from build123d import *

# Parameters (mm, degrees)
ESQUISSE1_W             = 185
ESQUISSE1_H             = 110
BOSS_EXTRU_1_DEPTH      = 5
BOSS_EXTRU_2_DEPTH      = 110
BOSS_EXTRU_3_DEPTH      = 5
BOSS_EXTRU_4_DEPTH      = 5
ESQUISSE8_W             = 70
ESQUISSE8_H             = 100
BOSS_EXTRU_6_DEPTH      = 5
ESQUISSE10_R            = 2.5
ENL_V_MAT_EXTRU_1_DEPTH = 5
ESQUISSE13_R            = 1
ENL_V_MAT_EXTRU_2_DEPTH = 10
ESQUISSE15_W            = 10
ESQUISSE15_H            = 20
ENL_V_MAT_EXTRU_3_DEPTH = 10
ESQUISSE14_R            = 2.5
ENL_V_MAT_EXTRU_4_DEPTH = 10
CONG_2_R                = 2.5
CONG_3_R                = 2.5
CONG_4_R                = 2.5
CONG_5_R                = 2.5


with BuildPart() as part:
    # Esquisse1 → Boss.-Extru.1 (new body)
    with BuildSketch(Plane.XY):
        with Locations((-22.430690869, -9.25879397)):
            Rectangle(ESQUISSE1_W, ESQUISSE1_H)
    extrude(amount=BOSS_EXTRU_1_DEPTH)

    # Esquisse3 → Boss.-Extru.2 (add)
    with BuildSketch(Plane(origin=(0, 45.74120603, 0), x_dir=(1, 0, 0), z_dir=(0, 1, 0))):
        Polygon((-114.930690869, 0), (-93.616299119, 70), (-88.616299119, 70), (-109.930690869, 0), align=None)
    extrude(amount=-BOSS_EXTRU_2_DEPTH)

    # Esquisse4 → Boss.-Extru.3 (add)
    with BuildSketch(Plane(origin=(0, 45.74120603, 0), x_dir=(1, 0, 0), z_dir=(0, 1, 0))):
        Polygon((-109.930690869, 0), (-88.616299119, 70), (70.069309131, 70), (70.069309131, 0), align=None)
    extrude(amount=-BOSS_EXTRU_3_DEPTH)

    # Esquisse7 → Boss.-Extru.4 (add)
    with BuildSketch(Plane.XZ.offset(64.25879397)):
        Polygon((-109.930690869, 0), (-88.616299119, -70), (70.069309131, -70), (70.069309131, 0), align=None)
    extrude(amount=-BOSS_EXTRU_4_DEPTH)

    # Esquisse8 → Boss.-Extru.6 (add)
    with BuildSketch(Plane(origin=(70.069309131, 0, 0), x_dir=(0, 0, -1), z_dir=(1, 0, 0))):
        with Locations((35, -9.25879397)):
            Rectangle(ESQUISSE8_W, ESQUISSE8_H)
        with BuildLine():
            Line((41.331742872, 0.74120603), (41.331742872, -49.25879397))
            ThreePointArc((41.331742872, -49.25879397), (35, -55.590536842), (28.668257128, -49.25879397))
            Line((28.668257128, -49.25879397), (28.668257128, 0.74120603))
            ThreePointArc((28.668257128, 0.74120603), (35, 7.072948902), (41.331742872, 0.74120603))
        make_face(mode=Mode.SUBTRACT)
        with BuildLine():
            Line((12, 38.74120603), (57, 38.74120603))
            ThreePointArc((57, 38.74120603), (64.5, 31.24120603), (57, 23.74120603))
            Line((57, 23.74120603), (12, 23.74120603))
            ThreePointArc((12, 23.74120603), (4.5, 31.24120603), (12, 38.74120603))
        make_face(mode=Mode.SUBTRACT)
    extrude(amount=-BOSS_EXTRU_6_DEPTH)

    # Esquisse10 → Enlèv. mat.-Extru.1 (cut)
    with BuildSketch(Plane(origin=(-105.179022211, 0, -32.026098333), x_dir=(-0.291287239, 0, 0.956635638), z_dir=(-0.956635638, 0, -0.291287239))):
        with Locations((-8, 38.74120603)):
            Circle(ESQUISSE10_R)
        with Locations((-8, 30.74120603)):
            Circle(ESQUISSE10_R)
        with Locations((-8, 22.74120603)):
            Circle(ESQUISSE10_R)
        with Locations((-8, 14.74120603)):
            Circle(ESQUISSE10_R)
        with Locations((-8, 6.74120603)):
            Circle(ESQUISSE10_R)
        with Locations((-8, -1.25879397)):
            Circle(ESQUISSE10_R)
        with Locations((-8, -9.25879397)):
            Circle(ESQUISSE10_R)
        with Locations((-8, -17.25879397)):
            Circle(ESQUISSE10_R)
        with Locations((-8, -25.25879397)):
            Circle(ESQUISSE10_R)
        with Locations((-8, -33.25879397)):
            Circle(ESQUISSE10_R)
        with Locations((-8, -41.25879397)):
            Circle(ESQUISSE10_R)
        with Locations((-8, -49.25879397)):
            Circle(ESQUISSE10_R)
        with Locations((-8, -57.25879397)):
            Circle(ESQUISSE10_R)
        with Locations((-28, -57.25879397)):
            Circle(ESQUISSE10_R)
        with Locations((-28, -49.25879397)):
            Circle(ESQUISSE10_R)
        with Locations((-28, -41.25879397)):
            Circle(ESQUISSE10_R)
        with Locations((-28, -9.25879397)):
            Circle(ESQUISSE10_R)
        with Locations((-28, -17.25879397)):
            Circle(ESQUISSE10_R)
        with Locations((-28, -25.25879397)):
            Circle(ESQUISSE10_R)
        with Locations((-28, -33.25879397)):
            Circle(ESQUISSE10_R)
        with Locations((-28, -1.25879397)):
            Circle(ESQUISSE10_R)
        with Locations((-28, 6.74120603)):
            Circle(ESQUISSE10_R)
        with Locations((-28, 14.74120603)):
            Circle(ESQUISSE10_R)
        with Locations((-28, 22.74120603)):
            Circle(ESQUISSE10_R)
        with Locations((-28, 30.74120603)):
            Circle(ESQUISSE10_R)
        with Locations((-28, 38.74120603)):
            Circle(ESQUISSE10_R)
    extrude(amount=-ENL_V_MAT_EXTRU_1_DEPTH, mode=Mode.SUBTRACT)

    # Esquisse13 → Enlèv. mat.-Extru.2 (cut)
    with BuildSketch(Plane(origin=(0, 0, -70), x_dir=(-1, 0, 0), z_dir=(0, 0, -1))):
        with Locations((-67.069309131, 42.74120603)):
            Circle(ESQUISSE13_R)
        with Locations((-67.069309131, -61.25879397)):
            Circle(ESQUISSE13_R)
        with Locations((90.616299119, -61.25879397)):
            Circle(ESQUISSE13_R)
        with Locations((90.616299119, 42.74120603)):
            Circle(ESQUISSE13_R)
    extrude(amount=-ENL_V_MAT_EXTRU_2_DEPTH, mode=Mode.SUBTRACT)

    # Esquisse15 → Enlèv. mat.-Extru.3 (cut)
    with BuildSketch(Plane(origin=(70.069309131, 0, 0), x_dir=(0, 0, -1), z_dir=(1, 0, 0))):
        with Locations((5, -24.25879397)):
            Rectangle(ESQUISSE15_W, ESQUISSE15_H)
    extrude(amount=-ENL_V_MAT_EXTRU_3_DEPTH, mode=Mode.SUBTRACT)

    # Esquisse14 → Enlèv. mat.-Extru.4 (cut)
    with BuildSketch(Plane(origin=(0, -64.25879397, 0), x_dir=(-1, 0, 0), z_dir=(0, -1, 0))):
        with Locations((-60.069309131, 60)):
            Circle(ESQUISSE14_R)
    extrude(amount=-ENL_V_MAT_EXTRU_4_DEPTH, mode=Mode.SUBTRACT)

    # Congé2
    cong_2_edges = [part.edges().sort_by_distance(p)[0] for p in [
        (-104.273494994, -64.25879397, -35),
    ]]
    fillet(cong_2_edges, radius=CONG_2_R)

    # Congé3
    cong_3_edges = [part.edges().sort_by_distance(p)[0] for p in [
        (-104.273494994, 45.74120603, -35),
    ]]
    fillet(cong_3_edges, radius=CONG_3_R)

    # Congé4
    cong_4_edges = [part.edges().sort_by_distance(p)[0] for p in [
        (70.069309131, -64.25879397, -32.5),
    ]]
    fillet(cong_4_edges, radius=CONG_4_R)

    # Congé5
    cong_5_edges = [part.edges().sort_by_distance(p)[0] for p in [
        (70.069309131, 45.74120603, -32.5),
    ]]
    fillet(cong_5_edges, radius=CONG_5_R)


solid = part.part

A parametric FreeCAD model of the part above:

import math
import FreeCAD as App
import Part
import Sketcher

V = App.Vector


def edges_at(feature, points):
    """Names of the edges that pass closest to the given points."""
    edges = feature.Shape.Edges
    near = lambda p: min(range(len(edges)), key=lambda i: edges[i].distToShape(Part.Vertex(*p))[0])
    return sorted({f"Edge{near(p) + 1}" for p in points})


def add_polygon(sketch, points):
    """Adds a closed chain of lines whose ends are joined by coincident constraints."""
    first, n = sketch.GeometryCount, len(points)
    for a, b in zip(points, points[1:] + points[:1]):
        sketch.addGeometry(Part.LineSegment(App.Vector(*a, 0), App.Vector(*b, 0)), False)
    for i in range(n):
        sketch.addConstraint(Sketcher.Constraint("Coincident", first + i, 2, first + (i + 1) % n, 1))

doc = App.newDocument("Part")
body = doc.addObject("PartDesign::Body", "Body")

# Sketch on XY plane
sketch1 = body.newObject("Sketcher::SketchObject", "Sketch")
sketch1.AttachmentSupport = (doc.getObject("XY_Plane"), [""])
sketch1.MapMode = "FlatFace"
add_polygon(sketch1, [(-115, 46), (-115, -64), (70, -64), (70, 46)])  # lines 0-3
sketch1.addConstraint([
    Sketcher.Constraint("Vertical", 0),
    Sketcher.Constraint("Horizontal", 1),
    Sketcher.Constraint("Vertical", 2),
    Sketcher.Constraint("Horizontal", 3),
    Sketcher.Constraint("DistanceX", 1, 1, 1, 2, 185.0),
    Sketcher.Constraint("DistanceY", 0, 2, 0, 1, 110.0),
    Sketcher.Constraint("DistanceX", 0, 2, -1, 1, 114.930691),
    Sketcher.Constraint("DistanceY", 0, 2, -1, 1, 64.258794),
])
pad1 = body.newObject("PartDesign::Pad", "Pad")
pad1.Profile = sketch1
pad1.Length = 5

# Sketch on XZ plane
sketch2 = body.newObject("Sketcher::SketchObject", "Sketch001")
sketch2.AttachmentSupport = (doc.getObject("XZ_Plane"), [""])
sketch2.MapMode = "FlatFace"
sketch2.AttachmentOffset = App.Placement(V(0, 0, -45.741206), App.Rotation())
add_polygon(sketch2, [(-94, -70), (-115, 0), (-110, 0), (-89, -70)])  # lines 0-3
sketch2.addConstraint([
    Sketcher.Constraint("Horizontal", 1),
    Sketcher.Constraint("Horizontal", 3),
    Sketcher.Constraint("PointOnObject", 0, 2, -1),
    Sketcher.Constraint("Parallel", 0, 2),
    Sketcher.Constraint("DistanceX", 1, 1, 1, 2, 5.0),
    Sketcher.Constraint("DistanceY", 2, 2, -1, 1, 70.0),
    Sketcher.Constraint("DistanceX", 2, 2, -1, 1, 88.616299),
    Sketcher.Constraint("DistanceX", 0, 2, -1, 1, 114.930691),
])
pad2 = body.newObject("PartDesign::Pad", "Pad001")
pad2.Profile = sketch2
pad2.Length = 110

# Sketch on XZ plane
sketch3 = body.newObject("Sketcher::SketchObject", "Sketch002")
sketch3.AttachmentSupport = (doc.getObject("XZ_Plane"), [""])
sketch3.MapMode = "FlatFace"
sketch3.AttachmentOffset = App.Placement(V(0, 0, -45.741206), App.Rotation())
add_polygon(sketch3, [(-89, -70), (-110, 0), (70, 0), (70, -70)])  # lines 0-3
sketch3.addConstraint([
    Sketcher.Constraint("Horizontal", 1),
    Sketcher.Constraint("Vertical", 2),
    Sketcher.Constraint("Horizontal", 3),
    Sketcher.Constraint("PointOnObject", 0, 2, -1),
    Sketcher.Constraint("DistanceX", 1, 1, 1, 2, 180.0),
    Sketcher.Constraint("DistanceY", 2, 2, 2, 1, 70.0),
    Sketcher.Constraint("DistanceX", 3, 2, 3, 1, 158.685608),
    Sketcher.Constraint("DistanceX", 3, 2, -1, 1, 88.616299),
])
pad3 = body.newObject("PartDesign::Pad", "Pad002")
pad3.Profile = sketch3
pad3.Length = 5

# Sketch on XZ plane
sketch4 = body.newObject("Sketcher::SketchObject", "Sketch003")
sketch4.AttachmentSupport = (doc.getObject("XZ_Plane"), [""])
sketch4.MapMode = "FlatFace"
sketch4.AttachmentOffset = App.Placement(V(0, 0, 64.258794), App.Rotation())
add_polygon(sketch4, [(-110, 0), (-89, -70), (70, -70), (70, 0)])  # lines 0-3
sketch4.addConstraint([
    Sketcher.Constraint("Horizontal", 1),
    Sketcher.Constraint("Vertical", 2),
    Sketcher.Constraint("Horizontal", 3),
    Sketcher.Constraint("PointOnObject", 2, 2, -1),
    Sketcher.Constraint("DistanceX", 3, 2, 3, 1, 180.0),
    Sketcher.Constraint("DistanceY", 2, 1, 2, 2, 70.0),
    Sketcher.Constraint("DistanceX", 1, 1, 1, 2, 158.685608),
    Sketcher.Constraint("DistanceX", 0, 2, -1, 1, 88.616299),
])
pad4 = body.newObject("PartDesign::Pad", "Pad003")
pad4.Profile = sketch4
pad4.Length = 5
pad4.Reversed = True

# Sketch on YZ plane
sketch5 = body.newObject("Sketcher::SketchObject", "Sketch004")
sketch5.AttachmentSupport = (doc.getObject("YZ_Plane"), [""])
sketch5.MapMode = "FlatFace"
sketch5.AttachmentOffset = App.Placement(V(0, 0, 70.069309), App.Rotation())
add_polygon(sketch5, [(41, 0), (-59, 0), (-59, -70), (41, -70)])  # lines 0-3
sketch5.addGeometry(Part.ArcOfCircle(Part.Circle(V(1, -35, 0), V(0, 0, 1), 6), math.radians(-90), math.radians(90)), False)  # 4
sketch5.addGeometry(Part.LineSegment(V(1, -41, 0), V(-49, -41, 0)), False)  # 5
sketch5.addGeometry(Part.ArcOfCircle(Part.Circle(V(-49, -35, 0), V(0, 0, 1), 6), math.radians(90), math.radians(270)), False)  # 6
sketch5.addGeometry(Part.LineSegment(V(-49, -29, 0), V(1, -29, 0)), False)  # 7
sketch5.addGeometry(Part.ArcOfCircle(Part.Circle(V(31, -12, 0), V(0, 0, 1), 8), math.radians(0), math.radians(180)), False)  # 8
sketch5.addGeometry(Part.LineSegment(V(39, -12, 0), V(39, -57, 0)), False)  # 9
sketch5.addGeometry(Part.ArcOfCircle(Part.Circle(V(31, -57, 0), V(0, 0, 1), 8), math.radians(180), math.radians(360)), False)  # 10
sketch5.addGeometry(Part.LineSegment(V(24, -57, 0), V(24, -12, 0)), False)  # 11
sketch5.addConstraint([
    Sketcher.Constraint("Tangent", 4, 1, 5, 1),
    Sketcher.Constraint("Tangent", 5, 2, 6, 2),
    Sketcher.Constraint("Tangent", 6, 1, 7, 1),
    Sketcher.Constraint("Tangent", 7, 2, 4, 2),
    Sketcher.Constraint("Tangent", 8, 1, 9, 1),
    Sketcher.Constraint("Tangent", 9, 2, 10, 2),
    Sketcher.Constraint("Tangent", 10, 1, 11, 1),
    Sketcher.Constraint("Tangent", 11, 2, 8, 2),
    Sketcher.Constraint("Horizontal", 0),
    Sketcher.Constraint("Vertical", 1),
    Sketcher.Constraint("Horizontal", 2),
    Sketcher.Constraint("Vertical", 3),
    Sketcher.Constraint("Horizontal", 5),
    Sketcher.Constraint("Horizontal", 7),
    Sketcher.Constraint("Vertical", 9),
    Sketcher.Constraint("Vertical", 11),
    Sketcher.Constraint("PointOnObject", 0, 2, -1),
    Sketcher.Constraint("Radius", 8, 7.5),
    Sketcher.Constraint("DistanceX", 0, 2, 0, 1, 100.0),
    Sketcher.Constraint("DistanceX", 5, 2, 5, 1, 50.0),
    Sketcher.Constraint("DistanceY", 1, 2, 1, 1, 70.0),
    Sketcher.Constraint("DistanceY", 9, 2, 9, 1, 45.0),
    Sketcher.Constraint("DistanceY", 4, 3, -1, 1, 35.0),
    Sketcher.Constraint("DistanceY", 8, 3, -1, 1, 12.0),
    Sketcher.Constraint("DistanceX", 0, 2, 6, 3, 10.0),
    Sketcher.Constraint("DistanceX", 8, 1, 3, 2, 2.0),
    Sketcher.Constraint("Radius", 4, 6.331743),
    Sketcher.Constraint("DistanceX", -1, 1, 4, 3, 0.741206),
])
pad5 = body.newObject("PartDesign::Pad", "Pad004")
pad5.Profile = sketch5
pad5.Length = 5
pad5.Reversed = True

# Sketch on an angled plane
sketch6 = body.newObject("Sketcher::SketchObject", "Sketch005")
sketch6.Placement = App.Placement(V(-105.179022, 0, -32.026098), App.Rotation(V(-0.291287239, 0, 0.956635638), V(0, 0.999999999, 0), V(-0.956635638, 0, -0.291287239), "ZXY"))
sketch6.addGeometry([
    Part.Circle(V(-8, 38.7, 0), V(0, 0, 1), 2.5),  # 0
    Part.Circle(V(-8, 30.7, 0), V(0, 0, 1), 2.5),  # 1
    Part.Circle(V(-8, 22.7, 0), V(0, 0, 1), 2.5),  # 2
    Part.Circle(V(-8, 14.7, 0), V(0, 0, 1), 2.5),  # 3
    Part.Circle(V(-8, 6.7, 0), V(0, 0, 1), 2.5),  # 4
    Part.Circle(V(-8, -1.3, 0), V(0, 0, 1), 2.5),  # 5
    Part.Circle(V(-8, -9.3, 0), V(0, 0, 1), 2.5),  # 6
    Part.Circle(V(-8, -17.3, 0), V(0, 0, 1), 2.5),  # 7
    Part.Circle(V(-8, -25.3, 0), V(0, 0, 1), 2.5),  # 8
    Part.Circle(V(-8, -33.3, 0), V(0, 0, 1), 2.5),  # 9
    Part.Circle(V(-8, -41.3, 0), V(0, 0, 1), 2.5),  # 10
    Part.Circle(V(-8, -49.3, 0), V(0, 0, 1), 2.5),  # 11
    Part.Circle(V(-8, -57.3, 0), V(0, 0, 1), 2.5),  # 12
    Part.Circle(V(-28, -57.3, 0), V(0, 0, 1), 2.5),  # 13
    Part.Circle(V(-28, -49.3, 0), V(0, 0, 1), 2.5),  # 14
    Part.Circle(V(-28, -41.3, 0), V(0, 0, 1), 2.5),  # 15
    Part.Circle(V(-28, -9.3, 0), V(0, 0, 1), 2.5),  # 16
    Part.Circle(V(-28, -17.3, 0), V(0, 0, 1), 2.5),  # 17
    Part.Circle(V(-28, -25.3, 0), V(0, 0, 1), 2.5),  # 18
    Part.Circle(V(-28, -33.3, 0), V(0, 0, 1), 2.5),  # 19
    Part.Circle(V(-28, -1.3, 0), V(0, 0, 1), 2.5),  # 20
    Part.Circle(V(-28, 6.7, 0), V(0, 0, 1), 2.5),  # 21
    Part.Circle(V(-28, 14.7, 0), V(0, 0, 1), 2.5),  # 22
    Part.Circle(V(-28, 22.7, 0), V(0, 0, 1), 2.5),  # 23
    Part.Circle(V(-28, 30.7, 0), V(0, 0, 1), 2.5),  # 24
    Part.Circle(V(-28, 38.7, 0), V(0, 0, 1), 2.5),  # 25
], False)
sketch6.addConstraint([
    Sketcher.Constraint("Equal", 0, 1),
    Sketcher.Constraint("Equal", 1, 2),
    Sketcher.Constraint("Equal", 2, 3),
    Sketcher.Constraint("Equal", 3, 4),
    Sketcher.Constraint("Equal", 4, 5),
    Sketcher.Constraint("Equal", 5, 6),
    Sketcher.Constraint("Equal", 6, 7),
    Sketcher.Constraint("Equal", 7, 8),
    Sketcher.Constraint("Equal", 8, 9),
    Sketcher.Constraint("Equal", 9, 10),
    Sketcher.Constraint("Equal", 10, 11),
    Sketcher.Constraint("Equal", 11, 12),
    Sketcher.Constraint("Equal", 12, 13),
    Sketcher.Constraint("Equal", 13, 14),
    Sketcher.Constraint("Equal", 14, 15),
    Sketcher.Constraint("Equal", 15, 16),
    Sketcher.Constraint("Equal", 16, 17),
    Sketcher.Constraint("Equal", 17, 18),
    Sketcher.Constraint("Equal", 18, 19),
    Sketcher.Constraint("Equal", 19, 20),
    Sketcher.Constraint("Equal", 20, 21),
    Sketcher.Constraint("Equal", 21, 22),
    Sketcher.Constraint("Equal", 22, 23),
    Sketcher.Constraint("Equal", 23, 24),
    Sketcher.Constraint("Equal", 24, 25),
    Sketcher.Constraint("Horizontal", 12, 3, 13, 3),
    Sketcher.Constraint("Horizontal", 11, 3, 14, 3),
    Sketcher.Constraint("Horizontal", 10, 3, 15, 3),
    Sketcher.Constraint("Horizontal", 6, 3, 16, 3),
    Sketcher.Constraint("Horizontal", 7, 3, 17, 3),
    Sketcher.Constraint("Horizontal", 8, 3, 18, 3),
    Sketcher.Constraint("Horizontal", 9, 3, 19, 3),
    Sketcher.Constraint("Horizontal", 5, 3, 20, 3),
    Sketcher.Constraint("Horizontal", 4, 3, 21, 3),
    Sketcher.Constraint("Horizontal", 3, 3, 22, 3),
    Sketcher.Constraint("Horizontal", 2, 3, 23, 3),
    Sketcher.Constraint("Horizontal", 1, 3, 24, 3),
    Sketcher.Constraint("Horizontal", 0, 3, 25, 3),
    Sketcher.Constraint("Vertical", 0, 3, 1, 3),
    Sketcher.Constraint("Vertical", 1, 3, 2, 3),
    Sketcher.Constraint("Vertical", 2, 3, 3, 3),
    Sketcher.Constraint("Vertical", 3, 3, 4, 3),
    Sketcher.Constraint("Vertical", 4, 3, 5, 3),
    Sketcher.Constraint("Vertical", 5, 3, 6, 3),
    Sketcher.Constraint("Vertical", 6, 3, 7, 3),
    Sketcher.Constraint("Vertical", 7, 3, 8, 3),
    Sketcher.Constraint("Vertical", 8, 3, 9, 3),
    Sketcher.Constraint("Vertical", 9, 3, 10, 3),
    Sketcher.Constraint("Vertical", 10, 3, 11, 3),
    Sketcher.Constraint("Vertical", 11, 3, 12, 3),
    Sketcher.Constraint("Vertical", 13, 3, 14, 3),
    Sketcher.Constraint("Vertical", 14, 3, 15, 3),
    Sketcher.Constraint("Vertical", 15, 3, 16, 3),
    Sketcher.Constraint("Vertical", 16, 3, 17, 3),
    Sketcher.Constraint("Vertical", 17, 3, 18, 3),
    Sketcher.Constraint("Vertical", 18, 3, 19, 3),
    Sketcher.Constraint("Vertical", 19, 3, 20, 3),
    Sketcher.Constraint("Vertical", 20, 3, 21, 3),
    Sketcher.Constraint("Vertical", 21, 3, 22, 3),
    Sketcher.Constraint("Vertical", 22, 3, 23, 3),
    Sketcher.Constraint("Vertical", 23, 3, 24, 3),
    Sketcher.Constraint("Vertical", 24, 3, 25, 3),
    Sketcher.Constraint("Diameter", 0, 5.0),
    Sketcher.Constraint("DistanceX", 0, 3, -1, 1, 8.0),
    Sketcher.Constraint("DistanceX", 13, 3, -1, 1, 28.0),
    Sketcher.Constraint("DistanceY", 1, 3, 0, 3, 8.0),
    Sketcher.Constraint("DistanceY", 2, 3, 1, 3, 8.0),
    Sketcher.Constraint("DistanceY", 3, 3, 2, 3, 8.0),
    Sketcher.Constraint("DistanceY", 4, 3, 3, 3, 8.0),
    Sketcher.Constraint("DistanceY", 5, 3, 4, 3, 8.0),
    Sketcher.Constraint("DistanceY", 6, 3, 5, 3, 8.0),
    Sketcher.Constraint("DistanceY", 7, 3, 6, 3, 8.0),
    Sketcher.Constraint("DistanceY", 8, 3, 7, 3, 8.0),
    Sketcher.Constraint("DistanceY", 9, 3, 8, 3, 8.0),
    Sketcher.Constraint("DistanceY", 10, 3, 9, 3, 8.0),
    Sketcher.Constraint("DistanceY", 11, 3, 10, 3, 8.0),
    Sketcher.Constraint("DistanceY", 12, 3, 11, 3, 8.0),
    Sketcher.Constraint("DistanceY", -1, 1, 0, 3, 38.741206),
])
pocket1 = body.newObject("PartDesign::Pocket", "Pocket")
pocket1.Profile = sketch6
pocket1.Length = 5

# Sketch on XY plane
sketch7 = body.newObject("Sketcher::SketchObject", "Sketch006")
sketch7.AttachmentSupport = (doc.getObject("XY_Plane"), [""])
sketch7.MapMode = "FlatFace"
sketch7.AttachmentOffset = App.Placement(V(0, 0, -70), App.Rotation())
sketch7.addGeometry([
    Part.Circle(V(67.1, 42.7, 0), V(0, 0, 1), 1),
    Part.Circle(V(67.1, -61.3, 0), V(0, 0, 1), 1),
    Part.Circle(V(-90.6, -61.3, 0), V(0, 0, 1), 1),
    Part.Circle(V(-90.6, 42.7, 0), V(0, 0, 1), 1),
], False)
sketch7.addConstraint([
    Sketcher.Constraint("Equal", 0, 1),
    Sketcher.Constraint("Equal", 1, 2),
    Sketcher.Constraint("Equal", 2, 3),
    Sketcher.Constraint("Horizontal", 1, 3, 2, 3),
    Sketcher.Constraint("Horizontal", 0, 3, 3, 3),
    Sketcher.Constraint("Vertical", 0, 3, 1, 3),
    Sketcher.Constraint("Vertical", 2, 3, 3, 3),
    Sketcher.Constraint("Diameter", 0, 2.0),
    Sketcher.Constraint("DistanceY", 1, 3, 0, 3, 104.0),
    Sketcher.Constraint("DistanceX", 2, 3, -1, 1, 90.616299),
    Sketcher.Constraint("DistanceX", -1, 1, 0, 3, 67.069309),
    Sketcher.Constraint("DistanceY", -1, 1, 0, 3, 42.741206),
])
pocket2 = body.newObject("PartDesign::Pocket", "Pocket001")
pocket2.Profile = sketch7
pocket2.Length = 10
pocket2.Reversed = True

# Sketch on YZ plane
sketch8 = body.newObject("Sketcher::SketchObject", "Sketch007")
sketch8.AttachmentSupport = (doc.getObject("YZ_Plane"), [""])
sketch8.MapMode = "FlatFace"
sketch8.AttachmentOffset = App.Placement(V(0, 0, 70.069309), App.Rotation())
add_polygon(sketch8, [(-14, 0), (-34, 0), (-34, -10), (-14, -10)])  # lines 0-3
sketch8.addConstraint([
    Sketcher.Constraint("Horizontal", 0),
    Sketcher.Constraint("Vertical", 1),
    Sketcher.Constraint("Horizontal", 2),
    Sketcher.Constraint("Vertical", 3),
    Sketcher.Constraint("PointOnObject", 0, 2, -1),
    Sketcher.Constraint("DistanceX", 0, 2, 0, 1, 20.0),
    Sketcher.Constraint("DistanceY", 1, 2, 1, 1, 10.0),
    Sketcher.Constraint("DistanceX", 0, 2, -1, 1, 34.258794),
])
pocket3 = body.newObject("PartDesign::Pocket", "Pocket002")
pocket3.Profile = sketch8
pocket3.Length = 10

# Sketch on XZ plane
sketch9 = body.newObject("Sketcher::SketchObject", "Sketch008")
sketch9.AttachmentSupport = (doc.getObject("XZ_Plane"), [""])
sketch9.MapMode = "FlatFace"
sketch9.AttachmentOffset = App.Placement(V(0, 0, 64.258794), App.Rotation())
sketch9.addGeometry(Part.Circle(V(60.1, -60, 0), V(0, 0, 1), 2.5), False)
sketch9.addConstraint([
    Sketcher.Constraint("Diameter", 0, 5.0),
    Sketcher.Constraint("DistanceY", 0, 3, -1, 1, 60.0),
    Sketcher.Constraint("DistanceX", -1, 1, 0, 3, 60.069309),
])
pocket4 = body.newObject("PartDesign::Pocket", "Pocket003")
pocket4.Profile = sketch9
pocket4.Length = 10
doc.recompute()

fillet = body.newObject("PartDesign::Fillet", "Fillet")
fillet.Base = (pocket4, edges_at(pocket4, [(-104.273, -64.259, -35)]))
fillet.Radius = 2.5
doc.recompute()

fillet2 = body.newObject("PartDesign::Fillet", "Fillet001")
fillet2.Base = (fillet, edges_at(fillet, [(-104.273, 45.741, -35)]))
fillet2.Radius = 2.5
doc.recompute()

fillet3 = body.newObject("PartDesign::Fillet", "Fillet002")
fillet3.Base = (fillet2, edges_at(fillet2, [(70.069, -64.259, -32.5)]))
fillet3.Radius = 2.5
doc.recompute()

fillet4 = body.newObject("PartDesign::Fillet", "Fillet003")
fillet4.Base = (fillet3, edges_at(fillet3, [(70.069, 45.741, -32.5)]))
fillet4.Radius = 2.5

doc.recompute()
